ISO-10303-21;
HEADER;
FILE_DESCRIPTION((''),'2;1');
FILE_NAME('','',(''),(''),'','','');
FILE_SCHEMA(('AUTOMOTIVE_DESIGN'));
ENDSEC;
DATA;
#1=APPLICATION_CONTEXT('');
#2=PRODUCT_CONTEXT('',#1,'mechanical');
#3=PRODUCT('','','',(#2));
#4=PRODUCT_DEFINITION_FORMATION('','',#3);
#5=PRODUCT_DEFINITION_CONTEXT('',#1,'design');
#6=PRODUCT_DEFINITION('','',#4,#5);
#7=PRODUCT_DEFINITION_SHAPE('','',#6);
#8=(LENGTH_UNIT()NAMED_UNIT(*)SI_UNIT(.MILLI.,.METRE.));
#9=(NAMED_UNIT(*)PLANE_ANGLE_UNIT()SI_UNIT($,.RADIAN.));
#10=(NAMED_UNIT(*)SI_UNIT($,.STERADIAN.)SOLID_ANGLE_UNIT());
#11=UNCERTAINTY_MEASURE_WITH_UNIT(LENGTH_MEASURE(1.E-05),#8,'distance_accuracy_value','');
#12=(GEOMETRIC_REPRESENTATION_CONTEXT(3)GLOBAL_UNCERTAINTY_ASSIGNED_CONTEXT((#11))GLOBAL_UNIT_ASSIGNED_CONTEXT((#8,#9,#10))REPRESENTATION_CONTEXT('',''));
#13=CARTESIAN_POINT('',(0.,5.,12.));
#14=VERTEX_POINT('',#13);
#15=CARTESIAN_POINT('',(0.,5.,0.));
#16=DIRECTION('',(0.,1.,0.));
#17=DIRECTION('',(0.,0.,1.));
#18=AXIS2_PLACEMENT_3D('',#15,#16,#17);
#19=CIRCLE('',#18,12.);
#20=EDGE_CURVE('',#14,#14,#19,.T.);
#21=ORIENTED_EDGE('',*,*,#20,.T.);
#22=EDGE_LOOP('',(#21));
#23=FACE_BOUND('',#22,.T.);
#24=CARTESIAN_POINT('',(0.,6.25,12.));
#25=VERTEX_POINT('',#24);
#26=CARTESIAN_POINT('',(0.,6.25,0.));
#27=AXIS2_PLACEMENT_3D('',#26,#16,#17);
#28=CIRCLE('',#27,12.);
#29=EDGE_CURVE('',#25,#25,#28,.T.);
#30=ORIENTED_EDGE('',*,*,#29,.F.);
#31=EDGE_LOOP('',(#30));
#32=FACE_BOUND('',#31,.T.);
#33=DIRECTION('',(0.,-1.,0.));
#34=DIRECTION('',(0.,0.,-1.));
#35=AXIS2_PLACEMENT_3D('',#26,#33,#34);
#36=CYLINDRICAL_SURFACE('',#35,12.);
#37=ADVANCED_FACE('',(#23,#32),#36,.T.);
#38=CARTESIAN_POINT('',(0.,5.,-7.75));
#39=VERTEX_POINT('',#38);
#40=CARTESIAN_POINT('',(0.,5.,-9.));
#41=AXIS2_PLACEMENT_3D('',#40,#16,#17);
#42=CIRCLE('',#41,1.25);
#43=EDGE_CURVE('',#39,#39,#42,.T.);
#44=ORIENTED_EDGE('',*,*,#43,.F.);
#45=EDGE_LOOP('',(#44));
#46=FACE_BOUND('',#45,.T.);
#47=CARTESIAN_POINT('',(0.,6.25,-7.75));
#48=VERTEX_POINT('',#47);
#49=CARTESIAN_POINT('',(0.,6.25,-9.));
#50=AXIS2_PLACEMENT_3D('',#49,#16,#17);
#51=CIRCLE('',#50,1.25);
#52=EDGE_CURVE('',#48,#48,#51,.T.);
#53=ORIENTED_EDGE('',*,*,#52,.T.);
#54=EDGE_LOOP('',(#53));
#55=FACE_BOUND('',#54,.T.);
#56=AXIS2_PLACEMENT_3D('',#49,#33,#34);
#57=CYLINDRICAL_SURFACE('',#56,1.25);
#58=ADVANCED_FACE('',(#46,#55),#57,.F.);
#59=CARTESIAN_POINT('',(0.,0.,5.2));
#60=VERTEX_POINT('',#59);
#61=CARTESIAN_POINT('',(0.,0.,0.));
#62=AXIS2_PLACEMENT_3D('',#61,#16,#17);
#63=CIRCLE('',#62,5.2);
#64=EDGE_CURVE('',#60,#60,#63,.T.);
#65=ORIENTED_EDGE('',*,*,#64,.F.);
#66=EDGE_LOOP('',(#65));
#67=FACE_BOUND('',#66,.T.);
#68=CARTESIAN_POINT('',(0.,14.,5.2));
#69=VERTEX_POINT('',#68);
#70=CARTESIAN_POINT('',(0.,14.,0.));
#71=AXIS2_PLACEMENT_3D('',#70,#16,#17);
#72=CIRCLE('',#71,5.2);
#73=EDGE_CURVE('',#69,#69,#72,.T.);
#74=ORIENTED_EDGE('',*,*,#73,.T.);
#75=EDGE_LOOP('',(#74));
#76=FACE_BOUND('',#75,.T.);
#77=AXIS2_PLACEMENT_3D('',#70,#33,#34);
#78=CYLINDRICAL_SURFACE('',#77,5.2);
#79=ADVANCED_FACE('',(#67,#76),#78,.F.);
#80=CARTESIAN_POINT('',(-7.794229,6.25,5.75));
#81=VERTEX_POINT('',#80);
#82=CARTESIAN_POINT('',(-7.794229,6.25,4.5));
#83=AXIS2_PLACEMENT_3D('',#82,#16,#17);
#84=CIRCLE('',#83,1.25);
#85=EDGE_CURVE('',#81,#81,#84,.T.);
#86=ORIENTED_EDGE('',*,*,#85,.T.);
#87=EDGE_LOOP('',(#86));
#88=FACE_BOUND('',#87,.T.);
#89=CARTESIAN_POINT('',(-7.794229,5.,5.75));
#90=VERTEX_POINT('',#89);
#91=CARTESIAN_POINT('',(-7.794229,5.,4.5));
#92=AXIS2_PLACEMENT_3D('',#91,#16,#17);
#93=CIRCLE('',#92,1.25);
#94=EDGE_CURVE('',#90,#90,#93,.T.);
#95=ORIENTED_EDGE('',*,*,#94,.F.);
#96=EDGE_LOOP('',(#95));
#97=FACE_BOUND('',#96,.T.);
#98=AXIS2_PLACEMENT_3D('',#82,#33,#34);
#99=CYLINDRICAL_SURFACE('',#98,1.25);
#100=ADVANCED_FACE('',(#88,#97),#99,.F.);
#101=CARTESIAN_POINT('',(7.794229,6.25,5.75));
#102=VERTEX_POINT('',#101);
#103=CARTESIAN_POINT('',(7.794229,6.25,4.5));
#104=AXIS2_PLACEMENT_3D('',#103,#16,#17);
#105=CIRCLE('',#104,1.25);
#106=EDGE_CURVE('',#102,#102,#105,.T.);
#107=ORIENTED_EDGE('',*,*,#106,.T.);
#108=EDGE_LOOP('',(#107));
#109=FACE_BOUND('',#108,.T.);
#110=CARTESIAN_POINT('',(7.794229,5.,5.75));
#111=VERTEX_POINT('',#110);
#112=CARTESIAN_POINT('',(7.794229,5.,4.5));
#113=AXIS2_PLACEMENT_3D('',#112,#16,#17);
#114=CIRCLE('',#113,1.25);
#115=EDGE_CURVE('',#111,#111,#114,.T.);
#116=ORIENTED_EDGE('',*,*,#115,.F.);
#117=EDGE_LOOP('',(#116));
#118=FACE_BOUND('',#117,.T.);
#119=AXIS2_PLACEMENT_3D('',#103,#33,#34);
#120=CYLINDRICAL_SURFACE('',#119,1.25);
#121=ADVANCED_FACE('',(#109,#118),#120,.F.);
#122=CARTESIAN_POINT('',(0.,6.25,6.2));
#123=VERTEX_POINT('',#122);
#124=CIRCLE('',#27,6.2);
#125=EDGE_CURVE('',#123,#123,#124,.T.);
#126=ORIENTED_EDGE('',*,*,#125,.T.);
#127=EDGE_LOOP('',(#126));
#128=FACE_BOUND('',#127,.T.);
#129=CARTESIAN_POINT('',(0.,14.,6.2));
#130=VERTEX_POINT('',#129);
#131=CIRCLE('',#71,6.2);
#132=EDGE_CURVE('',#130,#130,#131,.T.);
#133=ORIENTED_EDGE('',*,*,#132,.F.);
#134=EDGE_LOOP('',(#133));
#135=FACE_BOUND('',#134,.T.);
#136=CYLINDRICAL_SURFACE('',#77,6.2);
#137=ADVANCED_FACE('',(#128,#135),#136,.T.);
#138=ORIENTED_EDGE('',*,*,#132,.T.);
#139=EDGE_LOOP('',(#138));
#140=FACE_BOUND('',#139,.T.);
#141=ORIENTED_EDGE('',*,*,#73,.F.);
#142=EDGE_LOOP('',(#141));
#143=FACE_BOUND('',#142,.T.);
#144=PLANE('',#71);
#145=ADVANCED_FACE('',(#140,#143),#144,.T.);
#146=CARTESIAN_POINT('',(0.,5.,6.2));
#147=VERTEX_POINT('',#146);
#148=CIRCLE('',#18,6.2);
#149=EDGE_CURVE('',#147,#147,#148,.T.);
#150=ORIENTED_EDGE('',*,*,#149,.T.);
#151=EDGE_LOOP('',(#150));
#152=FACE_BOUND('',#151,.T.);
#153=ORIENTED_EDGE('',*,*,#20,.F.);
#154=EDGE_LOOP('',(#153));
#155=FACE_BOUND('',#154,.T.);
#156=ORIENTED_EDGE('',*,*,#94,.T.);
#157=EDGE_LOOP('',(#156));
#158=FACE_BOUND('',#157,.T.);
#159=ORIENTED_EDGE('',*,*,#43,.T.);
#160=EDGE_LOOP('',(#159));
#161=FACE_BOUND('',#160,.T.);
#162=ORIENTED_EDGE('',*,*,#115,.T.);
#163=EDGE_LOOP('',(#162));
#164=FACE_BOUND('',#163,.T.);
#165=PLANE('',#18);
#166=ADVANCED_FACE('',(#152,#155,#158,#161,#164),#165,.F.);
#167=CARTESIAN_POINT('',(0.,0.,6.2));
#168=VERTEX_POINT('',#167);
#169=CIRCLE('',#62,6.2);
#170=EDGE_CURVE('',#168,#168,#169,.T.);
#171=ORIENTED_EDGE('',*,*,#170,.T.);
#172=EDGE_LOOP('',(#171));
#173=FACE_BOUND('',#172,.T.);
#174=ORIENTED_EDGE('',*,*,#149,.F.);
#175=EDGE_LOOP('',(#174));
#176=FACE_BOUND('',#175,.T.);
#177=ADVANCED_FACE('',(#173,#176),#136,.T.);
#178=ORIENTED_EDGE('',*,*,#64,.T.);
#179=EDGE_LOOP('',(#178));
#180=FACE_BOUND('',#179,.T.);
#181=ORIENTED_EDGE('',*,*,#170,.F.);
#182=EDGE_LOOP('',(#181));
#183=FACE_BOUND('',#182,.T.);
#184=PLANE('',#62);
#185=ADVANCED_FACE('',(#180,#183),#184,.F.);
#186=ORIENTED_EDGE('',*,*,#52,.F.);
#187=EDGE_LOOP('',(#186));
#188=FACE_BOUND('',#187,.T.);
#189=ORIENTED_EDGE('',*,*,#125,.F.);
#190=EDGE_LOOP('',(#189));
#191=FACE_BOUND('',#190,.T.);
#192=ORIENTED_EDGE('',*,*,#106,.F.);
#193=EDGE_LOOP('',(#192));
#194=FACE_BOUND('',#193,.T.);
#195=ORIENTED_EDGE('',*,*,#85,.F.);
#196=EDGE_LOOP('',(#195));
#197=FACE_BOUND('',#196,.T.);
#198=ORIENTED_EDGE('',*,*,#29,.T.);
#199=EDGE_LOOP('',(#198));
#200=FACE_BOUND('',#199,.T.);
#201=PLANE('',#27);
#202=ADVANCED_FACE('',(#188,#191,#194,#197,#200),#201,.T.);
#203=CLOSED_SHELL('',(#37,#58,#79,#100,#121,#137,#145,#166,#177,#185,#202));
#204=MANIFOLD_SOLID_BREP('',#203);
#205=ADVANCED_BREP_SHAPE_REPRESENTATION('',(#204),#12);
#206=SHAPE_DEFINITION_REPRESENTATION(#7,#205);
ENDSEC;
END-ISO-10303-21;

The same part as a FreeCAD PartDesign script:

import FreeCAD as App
import Part
import Sketcher

doc = App.newDocument("Part")
body = doc.addObject("PartDesign::Body", "Body")

# Sketch on XZ plane
sketch1 = doc.addObject("Sketcher::SketchObject", "Sketch")
body.addObject(sketch1)
sketch1.AttachmentSupport = (doc.XZ_Plane, [""])
sketch1.MapMode = "FlatFace"
sketch1.addGeometry(Part.Circle(App.Vector(0, 0, 0), App.Vector(0, 0, 1), 6.2), False)
sketch1.addGeometry(Part.Circle(App.Vector(0, 0, 0), App.Vector(0, 0, 1), 5.2), False)
sketch1.addConstraint(Sketcher.Constraint("Coincident", 0, 3, -1, 1))
sketch1.addConstraint(Sketcher.Constraint("Coincident", 1, 3, -1, 1))
sketch1.addConstraint(Sketcher.Constraint("Diameter", 0, 12.4))
sketch1.addConstraint(Sketcher.Constraint("Diameter", 1, 10.4))
pad1 = doc.addObject("PartDesign::Pad", "Pad")
body.addObject(pad1)
pad1.Profile = sketch1
pad1.Length = 14
pad1.Reversed = True

# Sketch on XZ plane
sketch2 = doc.addObject("Sketcher::SketchObject", "Sketch001")
body.addObject(sketch2)
sketch2.AttachmentSupport = (doc.XZ_Plane, [""])
sketch2.MapMode = "FlatFace"
sketch2.AttachmentOffset = App.Placement(App.Vector(0, 0, -5), App.Rotation())
sketch2.addGeometry(Part.Circle(App.Vector(0, 0, 0), App.Vector(0, 0, 1), 12), False)
sketch2.addGeometry(Part.Circle(App.Vector(0, -9, 0), App.Vector(0, 0, 1), 1.25), False)
sketch2.addGeometry(Part.Circle(App.Vector(7.794229, 4.5, 0), App.Vector(0, 0, 1), 1.25), False)
sketch2.addGeometry(Part.Circle(App.Vector(0, 0, 0), App.Vector(0, 0, 1), 5.2), False)
sketch2.addGeometry(Part.Circle(App.Vector(-7.794229, 4.5, 0), App.Vector(0, 0, 1), 1.25), False)
sketch2.addConstraint(Sketcher.Constraint("Coincident", 0, 3, -1, 1))
sketch2.addConstraint(Sketcher.Constraint("Coincident", 3, 3, -1, 1))
sketch2.addConstraint(Sketcher.Constraint("Equal", 1, 2))
sketch2.addConstraint(Sketcher.Constraint("Equal", 2, 4))
sketch2.addConstraint(Sketcher.Constraint("Symmetric", 2, 3, 4, 3, -2))
sketch2.addConstraint(Sketcher.Constraint("PointOnObject", 1, 3, -2))
sketch2.addConstraint(Sketcher.Constraint("Diameter", 0, 24.0))
sketch2.addConstraint(Sketcher.Constraint("Diameter", 1, 2.5))
sketch2.addConstraint(Sketcher.Constraint("Diameter", 3, 10.4))
sketch2.addConstraint(Sketcher.Constraint("DistanceY", 1, 3, -1, 1, 9.0))
sketch2.addConstraint(Sketcher.Constraint("DistanceY", -1, 1, 2, 3, 4.5))
sketch2.addConstraint(Sketcher.Constraint("DistanceX", -1, 1, 2, 3, 7.794229))
pad2 = doc.addObject("PartDesign::Pad", "Pad001")
body.addObject(pad2)
pad2.Profile = sketch2
pad2.Length = 1.25
pad2.Reversed = True

doc.recompute()
